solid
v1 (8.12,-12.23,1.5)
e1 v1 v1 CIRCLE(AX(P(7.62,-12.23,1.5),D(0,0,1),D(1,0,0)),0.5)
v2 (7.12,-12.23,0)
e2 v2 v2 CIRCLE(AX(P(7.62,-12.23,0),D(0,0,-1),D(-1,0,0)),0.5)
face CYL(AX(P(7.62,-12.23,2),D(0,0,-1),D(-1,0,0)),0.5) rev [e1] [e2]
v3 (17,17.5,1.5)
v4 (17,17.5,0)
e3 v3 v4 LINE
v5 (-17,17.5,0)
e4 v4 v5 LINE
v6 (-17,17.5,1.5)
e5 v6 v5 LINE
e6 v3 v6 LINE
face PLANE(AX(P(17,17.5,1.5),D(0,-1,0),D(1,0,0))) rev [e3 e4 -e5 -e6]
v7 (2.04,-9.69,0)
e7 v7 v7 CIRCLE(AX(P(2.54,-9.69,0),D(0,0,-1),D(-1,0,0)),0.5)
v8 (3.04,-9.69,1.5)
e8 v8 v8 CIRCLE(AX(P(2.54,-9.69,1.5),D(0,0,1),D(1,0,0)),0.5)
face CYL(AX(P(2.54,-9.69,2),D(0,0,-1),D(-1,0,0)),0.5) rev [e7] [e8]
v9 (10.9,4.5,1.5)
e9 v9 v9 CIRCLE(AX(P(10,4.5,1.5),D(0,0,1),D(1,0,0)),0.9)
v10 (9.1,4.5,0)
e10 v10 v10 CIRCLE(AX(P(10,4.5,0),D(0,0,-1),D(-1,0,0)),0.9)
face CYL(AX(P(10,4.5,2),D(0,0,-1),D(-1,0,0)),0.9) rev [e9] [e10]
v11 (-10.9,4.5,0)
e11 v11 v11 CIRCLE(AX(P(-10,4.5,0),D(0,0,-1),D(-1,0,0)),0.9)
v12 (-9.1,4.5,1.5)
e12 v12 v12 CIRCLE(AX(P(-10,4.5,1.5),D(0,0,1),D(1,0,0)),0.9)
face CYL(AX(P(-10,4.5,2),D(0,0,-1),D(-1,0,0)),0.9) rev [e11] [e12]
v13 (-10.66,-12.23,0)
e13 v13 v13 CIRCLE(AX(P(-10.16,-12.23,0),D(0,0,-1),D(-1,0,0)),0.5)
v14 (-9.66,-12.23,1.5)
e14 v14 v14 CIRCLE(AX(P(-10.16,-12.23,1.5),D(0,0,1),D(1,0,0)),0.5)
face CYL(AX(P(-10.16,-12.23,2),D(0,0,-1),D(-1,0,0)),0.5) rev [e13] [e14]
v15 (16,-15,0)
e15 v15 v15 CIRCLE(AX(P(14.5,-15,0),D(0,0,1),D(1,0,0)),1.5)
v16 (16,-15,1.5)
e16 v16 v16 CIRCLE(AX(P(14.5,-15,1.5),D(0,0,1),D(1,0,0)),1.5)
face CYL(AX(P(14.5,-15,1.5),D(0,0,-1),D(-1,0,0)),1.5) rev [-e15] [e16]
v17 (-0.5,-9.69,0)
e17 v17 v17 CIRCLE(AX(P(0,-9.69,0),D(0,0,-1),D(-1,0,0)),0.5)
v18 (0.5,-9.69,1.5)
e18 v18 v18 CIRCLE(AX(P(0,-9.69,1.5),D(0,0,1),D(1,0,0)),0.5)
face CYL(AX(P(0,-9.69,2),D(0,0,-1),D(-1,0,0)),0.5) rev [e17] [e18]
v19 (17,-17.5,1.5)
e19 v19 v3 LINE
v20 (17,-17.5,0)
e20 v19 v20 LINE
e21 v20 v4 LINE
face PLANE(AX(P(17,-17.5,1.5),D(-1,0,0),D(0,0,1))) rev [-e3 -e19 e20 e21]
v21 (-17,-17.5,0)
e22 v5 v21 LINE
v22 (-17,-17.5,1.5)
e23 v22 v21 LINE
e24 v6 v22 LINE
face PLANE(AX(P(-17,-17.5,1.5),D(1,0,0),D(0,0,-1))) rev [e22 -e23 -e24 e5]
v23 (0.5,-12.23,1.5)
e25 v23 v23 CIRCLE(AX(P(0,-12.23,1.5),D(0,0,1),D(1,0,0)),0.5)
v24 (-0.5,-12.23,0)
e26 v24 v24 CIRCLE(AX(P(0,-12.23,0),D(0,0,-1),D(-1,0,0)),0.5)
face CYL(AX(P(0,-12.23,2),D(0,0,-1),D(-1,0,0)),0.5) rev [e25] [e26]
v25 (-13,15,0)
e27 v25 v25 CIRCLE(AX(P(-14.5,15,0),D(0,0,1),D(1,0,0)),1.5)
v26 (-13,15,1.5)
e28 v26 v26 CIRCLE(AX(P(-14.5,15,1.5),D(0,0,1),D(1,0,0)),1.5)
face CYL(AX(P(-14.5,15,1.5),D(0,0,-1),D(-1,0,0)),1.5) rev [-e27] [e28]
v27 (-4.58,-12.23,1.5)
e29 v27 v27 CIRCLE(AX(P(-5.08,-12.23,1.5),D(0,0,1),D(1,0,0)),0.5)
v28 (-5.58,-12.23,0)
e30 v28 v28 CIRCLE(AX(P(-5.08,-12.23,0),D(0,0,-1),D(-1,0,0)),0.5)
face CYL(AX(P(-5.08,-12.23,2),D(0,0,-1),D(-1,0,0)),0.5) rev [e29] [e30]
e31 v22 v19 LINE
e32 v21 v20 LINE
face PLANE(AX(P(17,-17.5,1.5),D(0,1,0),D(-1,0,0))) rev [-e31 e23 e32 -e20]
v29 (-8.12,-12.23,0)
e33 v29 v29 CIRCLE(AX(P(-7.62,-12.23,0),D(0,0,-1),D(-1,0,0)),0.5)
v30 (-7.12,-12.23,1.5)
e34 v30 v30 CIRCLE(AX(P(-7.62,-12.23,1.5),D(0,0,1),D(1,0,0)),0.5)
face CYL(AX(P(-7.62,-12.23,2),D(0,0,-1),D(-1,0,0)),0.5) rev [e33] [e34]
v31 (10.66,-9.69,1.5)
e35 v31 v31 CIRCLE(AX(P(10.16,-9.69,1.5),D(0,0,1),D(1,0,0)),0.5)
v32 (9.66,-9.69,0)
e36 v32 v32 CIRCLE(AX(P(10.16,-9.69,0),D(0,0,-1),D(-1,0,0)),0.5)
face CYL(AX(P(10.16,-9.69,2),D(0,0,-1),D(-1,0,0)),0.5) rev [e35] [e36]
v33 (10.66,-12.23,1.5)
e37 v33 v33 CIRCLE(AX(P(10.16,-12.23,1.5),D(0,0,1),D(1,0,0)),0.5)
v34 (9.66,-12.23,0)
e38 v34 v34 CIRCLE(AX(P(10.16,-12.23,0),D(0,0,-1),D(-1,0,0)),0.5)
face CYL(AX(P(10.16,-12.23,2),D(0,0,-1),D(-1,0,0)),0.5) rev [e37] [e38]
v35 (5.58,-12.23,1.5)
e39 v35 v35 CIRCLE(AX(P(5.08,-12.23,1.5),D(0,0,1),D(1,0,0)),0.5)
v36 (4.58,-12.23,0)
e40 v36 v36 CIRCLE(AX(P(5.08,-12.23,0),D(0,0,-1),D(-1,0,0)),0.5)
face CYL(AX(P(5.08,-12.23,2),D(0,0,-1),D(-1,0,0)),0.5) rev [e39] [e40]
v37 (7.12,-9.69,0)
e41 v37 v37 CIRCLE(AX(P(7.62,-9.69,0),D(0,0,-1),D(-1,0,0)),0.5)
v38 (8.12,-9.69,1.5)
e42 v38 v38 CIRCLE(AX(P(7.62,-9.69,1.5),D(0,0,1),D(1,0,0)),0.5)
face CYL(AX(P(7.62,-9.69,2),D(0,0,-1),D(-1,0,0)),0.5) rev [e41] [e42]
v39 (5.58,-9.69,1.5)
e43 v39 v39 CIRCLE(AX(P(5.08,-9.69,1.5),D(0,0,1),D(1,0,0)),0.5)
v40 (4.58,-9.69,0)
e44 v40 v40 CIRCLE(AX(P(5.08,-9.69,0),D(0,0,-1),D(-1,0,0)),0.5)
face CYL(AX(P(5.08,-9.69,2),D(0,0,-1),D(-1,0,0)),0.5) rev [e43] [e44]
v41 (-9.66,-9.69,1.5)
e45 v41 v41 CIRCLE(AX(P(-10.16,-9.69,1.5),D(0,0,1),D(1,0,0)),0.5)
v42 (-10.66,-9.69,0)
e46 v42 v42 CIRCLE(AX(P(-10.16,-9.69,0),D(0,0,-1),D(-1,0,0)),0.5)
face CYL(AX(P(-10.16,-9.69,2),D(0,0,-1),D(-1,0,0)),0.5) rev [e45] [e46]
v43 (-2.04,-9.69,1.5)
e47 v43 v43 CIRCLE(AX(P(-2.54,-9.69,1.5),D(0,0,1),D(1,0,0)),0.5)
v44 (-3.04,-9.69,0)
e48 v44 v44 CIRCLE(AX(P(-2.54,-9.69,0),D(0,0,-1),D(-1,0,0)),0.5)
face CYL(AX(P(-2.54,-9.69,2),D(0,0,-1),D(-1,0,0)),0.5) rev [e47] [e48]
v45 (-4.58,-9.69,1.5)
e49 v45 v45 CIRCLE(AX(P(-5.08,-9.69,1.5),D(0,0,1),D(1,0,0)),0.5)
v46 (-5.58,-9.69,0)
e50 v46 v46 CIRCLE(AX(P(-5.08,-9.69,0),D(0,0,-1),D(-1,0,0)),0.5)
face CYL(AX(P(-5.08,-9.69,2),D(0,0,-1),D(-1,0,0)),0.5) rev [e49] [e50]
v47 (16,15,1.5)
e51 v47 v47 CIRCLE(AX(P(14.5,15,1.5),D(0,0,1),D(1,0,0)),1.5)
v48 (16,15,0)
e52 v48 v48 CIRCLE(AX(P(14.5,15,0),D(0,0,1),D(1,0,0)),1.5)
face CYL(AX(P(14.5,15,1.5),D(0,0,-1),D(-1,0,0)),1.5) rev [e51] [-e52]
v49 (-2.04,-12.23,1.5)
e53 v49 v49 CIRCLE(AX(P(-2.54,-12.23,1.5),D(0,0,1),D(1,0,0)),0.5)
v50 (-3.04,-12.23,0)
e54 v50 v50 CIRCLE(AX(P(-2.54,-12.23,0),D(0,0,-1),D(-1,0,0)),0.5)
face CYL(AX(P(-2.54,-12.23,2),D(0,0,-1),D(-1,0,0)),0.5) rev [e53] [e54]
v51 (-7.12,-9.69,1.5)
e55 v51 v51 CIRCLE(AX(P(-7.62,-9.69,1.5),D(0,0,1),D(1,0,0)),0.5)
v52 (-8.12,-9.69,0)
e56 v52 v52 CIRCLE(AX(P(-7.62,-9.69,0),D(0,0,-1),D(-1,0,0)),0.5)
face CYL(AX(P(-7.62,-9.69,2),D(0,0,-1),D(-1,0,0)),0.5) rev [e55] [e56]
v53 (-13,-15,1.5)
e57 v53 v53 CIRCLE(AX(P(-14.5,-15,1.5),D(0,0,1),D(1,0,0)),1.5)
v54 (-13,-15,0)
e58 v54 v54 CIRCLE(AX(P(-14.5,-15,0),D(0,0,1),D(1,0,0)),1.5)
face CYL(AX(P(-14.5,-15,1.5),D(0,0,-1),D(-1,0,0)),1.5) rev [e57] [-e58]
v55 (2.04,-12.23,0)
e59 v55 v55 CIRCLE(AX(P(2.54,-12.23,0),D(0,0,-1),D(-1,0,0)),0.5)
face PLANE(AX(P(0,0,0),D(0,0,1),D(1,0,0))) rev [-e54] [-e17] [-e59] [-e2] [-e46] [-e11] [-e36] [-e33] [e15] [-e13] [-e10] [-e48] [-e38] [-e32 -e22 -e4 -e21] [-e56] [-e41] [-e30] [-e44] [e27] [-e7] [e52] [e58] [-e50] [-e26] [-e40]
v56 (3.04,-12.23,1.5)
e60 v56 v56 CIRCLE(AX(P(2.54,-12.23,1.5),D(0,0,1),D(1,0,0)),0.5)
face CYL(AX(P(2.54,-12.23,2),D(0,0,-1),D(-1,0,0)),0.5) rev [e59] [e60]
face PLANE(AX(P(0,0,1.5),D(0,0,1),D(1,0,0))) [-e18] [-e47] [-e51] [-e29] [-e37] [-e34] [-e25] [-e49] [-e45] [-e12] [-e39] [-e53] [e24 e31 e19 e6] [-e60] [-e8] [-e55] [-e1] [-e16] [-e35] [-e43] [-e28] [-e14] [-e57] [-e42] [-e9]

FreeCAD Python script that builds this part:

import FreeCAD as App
import Part
import Sketcher

V = App.Vector
Q = App.Units.Quantity


def add_polygon(sketch, points):
    """Adds a closed chain of lines whose ends are joined by coincident constraints."""
    first, n = sketch.GeometryCount, len(points)
    for a, b in zip(points, points[1:] + points[:1]):
        sketch.addGeometry(Part.LineSegment(App.Vector(*a, 0), App.Vector(*b, 0)), False)
    for i in range(n):
        sketch.addConstraint(Sketcher.Constraint("Coincident", first + i, 2, first + (i + 1) % n, 1))

doc = App.newDocument("Part")
body = doc.addObject("PartDesign::Body", "Body")

# Sketch on XY plane
sketch1 = body.newObject("Sketcher::SketchObject", "Sketch")
sketch1.AttachmentSupport = (doc.getObject("XY_Plane"), [""])
sketch1.MapMode = "FlatFace"
add_polygon(sketch1, [(-17, 17.5), (-17, -17.5), (17, -17.5), (17, 17.5)])  # lines 0-3
sketch1.addGeometry(Part.Circle(V(-14.5, -15, 0), V(0, 0, 1), 1.5), False)  # 4
sketch1.addGeometry(Part.Circle(V(14.5, -15, 0), V(0, 0, 1), 1.5), False)  # 5
sketch1.addGeometry(Part.Circle(V(-14.5, 15, 0), V(0, 0, 1), 1.5), False)  # 6
sketch1.addGeometry(Part.Circle(V(14.5, 15, 0), V(0, 0, 1), 1.5), False)  # 7
sketch1.addConstraint([
    Sketcher.Constraint("Vertical", 0),
    Sketcher.Constraint("Horizontal", 1),
    Sketcher.Constraint("Vertical", 2),
    Sketcher.Constraint("Horizontal", 3),
    Sketcher.Constraint("Equal", 4, 5),
    Sketcher.Constraint("Equal", 5, 6),
    Sketcher.Constraint("Equal", 6, 7),
    Sketcher.Constraint("Symmetric", 5, 3, 6, 3, -1, 1),
    Sketcher.Constraint("Symmetric", 4, 3, 7, 3, -1, 1),
    Sketcher.Constraint("Symmetric", 0, 2, 2, 2, -1, 1),
    Sketcher.Constraint("Symmetric", 4, 3, 5, 3, -2),
    Sketcher.Constraint("Diameter", 4, Q("3 mm")),
    Sketcher.Constraint("DistanceX", 1, 1, 1, 2, Q("34 mm")),
    Sketcher.Constraint("DistanceY", 0, 2, 0, 1, Q("35 mm")),
    Sketcher.Constraint("DistanceY", 4, 3, -1, 1, Q("15 mm")),
    Sketcher.Constraint("DistanceX", 4, 3, 5, 3, Q("29 mm")),
])
pad1 = body.newObject("PartDesign::Pad", "Pad")
pad1.Profile = sketch1
pad1.Length = 1.5

# Sketch on XY plane
sketch2 = body.newObject("Sketcher::SketchObject", "Sketch001")
sketch2.AttachmentSupport = (doc.getObject("XY_Plane"), [""])
sketch2.MapMode = "FlatFace"
sketch2.addGeometry([
    Part.Circle(V(10, 4.5, 0), V(0, 0, 1), 0.9),  # 0
    Part.Circle(V(-10, 4.5, 0), V(0, 0, 1), 0.9),  # 1
    Part.Circle(V(-10.2, -9.7, 0), V(0, 0, 1), 0.5),  # 2
    Part.Circle(V(-10.2, -12.2, 0), V(0, 0, 1), 0.5),  # 3
    Part.Circle(V(-7.6, -12.2, 0), V(0, 0, 1), 0.5),  # 4
    Part.Circle(V(-7.6, -9.7, 0), V(0, 0, 1), 0.5),  # 5
    Part.Circle(V(-5.1, -12.2, 0), V(0, 0, 1), 0.5),  # 6
    Part.Circle(V(-5.1, -9.7, 0), V(0, 0, 1), 0.5),  # 7
    Part.Circle(V(-2.5, -12.2, 0), V(0, 0, 1), 0.5),  # 8
    Part.Circle(V(-2.5, -9.7, 0), V(0, 0, 1), 0.5),  # 9
    Part.Circle(V(0, -12.2, 0), V(0, 0, 1), 0.5),  # 10
    Part.Circle(V(0, -9.7, 0), V(0, 0, 1), 0.5),  # 11
    Part.Circle(V(2.5, -12.2, 0), V(0, 0, 1), 0.5),  # 12
    Part.Circle(V(2.5, -9.7, 0), V(0, 0, 1), 0.5),  # 13
    Part.Circle(V(5.1, -12.2, 0), V(0, 0, 1), 0.5),  # 14
    Part.Circle(V(5.1, -9.7, 0), V(0, 0, 1), 0.5),  # 15
    Part.Circle(V(7.6, -12.2, 0), V(0, 0, 1), 0.5),  # 16
    Part.Circle(V(7.6, -9.7, 0), V(0, 0, 1), 0.5),  # 17
    Part.Circle(V(10.2, -12.2, 0), V(0, 0, 1), 0.5),  # 18
    Part.Circle(V(10.2, -9.7, 0), V(0, 0, 1), 0.5),  # 19
], False)
sketch2.addConstraint([
    Sketcher.Constraint("Equal", 0, 1),
    Sketcher.Constraint("Equal", 2, 3),
    Sketcher.Constraint("Equal", 3, 4),
    Sketcher.Constraint("Equal", 4, 5),
    Sketcher.Constraint("Equal", 5, 6),
    Sketcher.Constraint("Equal", 6, 7),
    Sketcher.Constraint("Equal", 7, 8),
    Sketcher.Constraint("Equal", 8, 9),
    Sketcher.Constraint("Equal", 9, 10),
    Sketcher.Constraint("Equal", 10, 11),
    Sketcher.Constraint("Equal", 11, 12),
    Sketcher.Constraint("Equal", 12, 13),
    Sketcher.Constraint("Equal", 13, 14),
    Sketcher.Constraint("Equal", 14, 15),
    Sketcher.Constraint("Equal", 15, 16),
    Sketcher.Constraint("Equal", 16, 17),
    Sketcher.Constraint("Equal", 17, 18),
    Sketcher.Constraint("Equal", 18, 19),
    Sketcher.Constraint("Symmetric", 0, 3, 1, 3, -2),
    Sketcher.Constraint("Symmetric", 8, 3, 12, 3, -2),
    Sketcher.Constraint("Symmetric", 9, 3, 13, 3, -2),
    Sketcher.Constraint("Symmetric", 6, 3, 14, 3, -2),
    Sketcher.Constraint("Symmetric", 7, 3, 15, 3, -2),
    Sketcher.Constraint("Symmetric", 4, 3, 16, 3, -2),
    Sketcher.Constraint("Symmetric", 5, 3, 17, 3, -2),
    Sketcher.Constraint("Symmetric", 3, 3, 18, 3, -2),
    Sketcher.Constraint("Symmetric", 2, 3, 19, 3, -2),
    Sketcher.Constraint("PointOnObject", 10, 3, -2),
    Sketcher.Constraint("PointOnObject", 11, 3, -2),
    Sketcher.Constraint("Horizontal", 3, 3, 4, 3),
    Sketcher.Constraint("Horizontal", 2, 3, 5, 3),
    Sketcher.Constraint("Horizontal", 4, 3, 6, 3),
    Sketcher.Constraint("Horizontal", 5, 3, 7, 3),
    Sketcher.Constraint("Horizontal", 6, 3, 8, 3),
    Sketcher.Constraint("Horizontal", 7, 3, 9, 3),
    Sketcher.Constraint("Horizontal", 8, 3, 10, 3),
    Sketcher.Constraint("Horizontal", 9, 3, 11, 3),
    Sketcher.Constraint("Vertical", 2, 3, 3, 3),
    Sketcher.Constraint("Vertical", 4, 3, 5, 3),
    Sketcher.Constraint("Vertical", 6, 3, 7, 3),
    Sketcher.Constraint("Vertical", 8, 3, 9, 3),
    Sketcher.Constraint("Diameter", 2, Q("1 mm")),
    Sketcher.Constraint("Diameter", 0, Q("1.8 mm")),
    Sketcher.Constraint("DistanceX", -1, 1, 0, 3, Q("10 mm")),
    Sketcher.Constraint("DistanceY", -1, 1, 0, 3, Q("4.5 mm")),
    Sketcher.Constraint("DistanceX", 2, 3, -1, 1, Q("10.16 mm")),
    Sketcher.Constraint("DistanceY", 2, 3, -1, 1, Q("9.69 mm")),
    Sketcher.Constraint("DistanceY", 3, 3, -1, 1, Q("12.23 mm")),
    Sketcher.Constraint("DistanceX", 4, 3, -1, 1, Q("7.62 mm")),
    Sketcher.Constraint("DistanceX", 6, 3, -1, 1, Q("5.08 mm")),
    Sketcher.Constraint("DistanceX", 8, 3, -1, 1, Q("2.54 mm")),
])
pocket1 = body.newObject("PartDesign::Pocket", "Pocket")
pocket1.Profile = sketch2
pocket1.Length = 2
pocket1.Reversed = True

doc.recompute()
